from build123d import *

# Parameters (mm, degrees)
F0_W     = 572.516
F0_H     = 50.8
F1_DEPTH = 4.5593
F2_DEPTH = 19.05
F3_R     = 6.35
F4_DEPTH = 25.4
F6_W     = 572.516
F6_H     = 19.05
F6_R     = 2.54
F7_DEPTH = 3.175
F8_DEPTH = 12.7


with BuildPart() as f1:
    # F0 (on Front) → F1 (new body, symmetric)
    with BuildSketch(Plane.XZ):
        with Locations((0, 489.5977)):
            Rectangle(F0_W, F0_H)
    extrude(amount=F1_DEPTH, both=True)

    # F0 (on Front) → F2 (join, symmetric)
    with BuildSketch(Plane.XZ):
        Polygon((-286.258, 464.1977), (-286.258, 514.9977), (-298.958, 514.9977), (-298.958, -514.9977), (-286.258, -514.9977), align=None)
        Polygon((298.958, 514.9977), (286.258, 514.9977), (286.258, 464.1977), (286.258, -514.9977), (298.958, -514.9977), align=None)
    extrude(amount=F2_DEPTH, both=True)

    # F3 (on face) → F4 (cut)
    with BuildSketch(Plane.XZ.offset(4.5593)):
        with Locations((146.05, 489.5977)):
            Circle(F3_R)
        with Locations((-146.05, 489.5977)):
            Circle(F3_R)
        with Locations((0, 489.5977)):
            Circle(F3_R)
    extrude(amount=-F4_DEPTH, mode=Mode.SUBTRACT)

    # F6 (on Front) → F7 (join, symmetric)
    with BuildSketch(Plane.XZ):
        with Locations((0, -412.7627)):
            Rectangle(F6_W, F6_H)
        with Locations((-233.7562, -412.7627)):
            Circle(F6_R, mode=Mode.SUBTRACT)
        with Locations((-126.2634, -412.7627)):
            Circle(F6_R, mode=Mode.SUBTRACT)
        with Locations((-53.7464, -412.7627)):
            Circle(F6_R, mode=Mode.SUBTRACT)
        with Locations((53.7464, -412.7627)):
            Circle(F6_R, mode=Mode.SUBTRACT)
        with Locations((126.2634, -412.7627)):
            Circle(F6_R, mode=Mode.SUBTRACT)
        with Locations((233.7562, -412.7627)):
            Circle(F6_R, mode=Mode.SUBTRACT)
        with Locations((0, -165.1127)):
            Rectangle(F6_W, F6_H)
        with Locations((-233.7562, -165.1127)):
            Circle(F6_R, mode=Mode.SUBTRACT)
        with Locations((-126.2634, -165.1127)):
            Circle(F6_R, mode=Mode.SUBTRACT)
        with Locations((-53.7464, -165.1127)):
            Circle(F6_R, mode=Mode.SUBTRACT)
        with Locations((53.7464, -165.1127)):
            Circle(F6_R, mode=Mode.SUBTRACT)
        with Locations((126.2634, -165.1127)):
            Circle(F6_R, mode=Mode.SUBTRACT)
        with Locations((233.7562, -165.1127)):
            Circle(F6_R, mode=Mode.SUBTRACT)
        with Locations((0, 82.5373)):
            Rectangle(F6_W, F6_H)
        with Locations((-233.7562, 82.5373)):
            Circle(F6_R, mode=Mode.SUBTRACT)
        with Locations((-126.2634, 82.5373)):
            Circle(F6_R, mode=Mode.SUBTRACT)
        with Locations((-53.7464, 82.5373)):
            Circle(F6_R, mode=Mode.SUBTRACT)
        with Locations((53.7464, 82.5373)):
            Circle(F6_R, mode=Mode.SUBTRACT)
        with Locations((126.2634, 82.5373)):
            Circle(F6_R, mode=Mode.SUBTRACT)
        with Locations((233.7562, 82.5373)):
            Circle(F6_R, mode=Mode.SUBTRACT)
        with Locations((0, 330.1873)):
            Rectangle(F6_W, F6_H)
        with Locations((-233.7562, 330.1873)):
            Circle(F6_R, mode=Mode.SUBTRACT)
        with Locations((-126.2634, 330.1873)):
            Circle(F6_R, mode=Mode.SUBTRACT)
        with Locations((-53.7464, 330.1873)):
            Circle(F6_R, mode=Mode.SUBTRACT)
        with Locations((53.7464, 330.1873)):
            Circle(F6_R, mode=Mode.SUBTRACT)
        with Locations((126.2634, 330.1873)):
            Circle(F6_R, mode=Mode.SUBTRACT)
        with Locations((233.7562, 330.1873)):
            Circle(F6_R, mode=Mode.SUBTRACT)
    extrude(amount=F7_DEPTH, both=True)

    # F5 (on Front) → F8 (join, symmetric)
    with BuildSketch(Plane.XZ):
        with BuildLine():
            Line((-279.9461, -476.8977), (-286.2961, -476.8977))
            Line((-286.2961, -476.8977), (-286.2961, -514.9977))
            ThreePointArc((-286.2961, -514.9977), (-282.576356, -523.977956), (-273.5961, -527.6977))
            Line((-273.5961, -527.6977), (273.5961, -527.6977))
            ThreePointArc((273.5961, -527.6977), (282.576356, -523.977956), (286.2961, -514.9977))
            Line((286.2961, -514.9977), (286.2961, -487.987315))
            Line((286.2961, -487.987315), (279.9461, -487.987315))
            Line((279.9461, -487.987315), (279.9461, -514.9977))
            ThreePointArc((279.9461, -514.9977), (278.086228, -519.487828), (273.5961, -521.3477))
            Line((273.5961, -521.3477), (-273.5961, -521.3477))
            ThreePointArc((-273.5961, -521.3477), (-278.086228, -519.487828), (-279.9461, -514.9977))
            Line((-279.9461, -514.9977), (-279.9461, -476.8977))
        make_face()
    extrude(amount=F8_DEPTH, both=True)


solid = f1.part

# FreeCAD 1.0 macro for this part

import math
import FreeCAD as App
import Part
import Sketcher
Q = App.Units.Quantity


def add_polygon(sketch, points):
    """Adds a closed chain of lines whose ends are joined by coincident constraints."""
    first, n = sketch.GeometryCount, len(points)
    for a, b in zip(points, points[1:] + points[:1]):
        sketch.addGeometry(Part.LineSegment(App.Vector(*a, 0), App.Vector(*b, 0)), False)
    for i in range(n):
        sketch.addConstraint(Sketcher.Constraint("Coincident", first + i, 2, first + (i + 1) % n, 1))

doc = App.newDocument("Part")
body = doc.addObject("PartDesign::Body", "Body")

# Sketch on XZ plane
sketch1 = body.newObject("Sketcher::SketchObject", "Sketch")
sketch1.AttachmentSupport = (doc.getObject("XZ_Plane"), [""])
sketch1.MapMode = "FlatFace"
add_polygon(sketch1, [(-286.258, 514.9977), (-286.258, 464.1977), (286.258, 464.1977), (286.258, 514.9977)])  # lines 0-3
sketch1.addConstraint(Sketcher.Constraint("Vertical", 0))
sketch1.addConstraint(Sketcher.Constraint("Horizontal", 1))
sketch1.addConstraint(Sketcher.Constraint("Vertical", 2))
sketch1.addConstraint(Sketcher.Constraint("Horizontal", 3))
sketch1.addConstraint(Sketcher.Constraint("DistanceY", 0, 2, 0, 1, Q("2 in")))
sketch1.addConstraint(Sketcher.Constraint("DistanceX", 1, 1, 1, 2, Q("22.54 in")))
sketch1.addConstraint(Sketcher.Constraint("DistanceX", 0, 2, -1, 1, Q("11.27 in")))
sketch1.addConstraint(Sketcher.Constraint("DistanceY", -1, 1, 0, 2, Q("18.2755 in")))
pad1 = body.newObject("PartDesign::Pad", "Pad")
pad1.Profile = sketch1
pad1.Length = Q("0.359 in")
pad1.Midplane = True

# Sketch on XZ plane
sketch2 = body.newObject("Sketcher::SketchObject", "Sketch001")
sketch2.AttachmentSupport = (doc.getObject("XZ_Plane"), [""])
sketch2.MapMode = "FlatFace"
add_polygon(sketch2, [(-286.258, 514.9977), (-298.958, 514.9977), (-298.958, -514.9977), (-286.258, -514.9977)])  # lines 0-3
add_polygon(sketch2, [(298.958, 514.9977), (286.258, 514.9977), (286.258, -514.9977), (298.958, -514.9977)])  # lines 4-7
sketch2.addConstraint(Sketcher.Constraint("Horizontal", 0))
sketch2.addConstraint(Sketcher.Constraint("Vertical", 1))
sketch2.addConstraint(Sketcher.Constraint("Horizontal", 2))
sketch2.addConstraint(Sketcher.Constraint("Vertical", 3))
sketch2.addConstraint(Sketcher.Constraint("Horizontal", 4))
sketch2.addConstraint(Sketcher.Constraint("Vertical", 5))
sketch2.addConstraint(Sketcher.Constraint("Horizontal", 6))
sketch2.addConstraint(Sketcher.Constraint("Vertical", 7))
sketch2.addConstraint(Sketcher.Constraint("Symmetric", 2, 2, 4, 2, -1, 1))
sketch2.addConstraint(Sketcher.Constraint("Symmetric", 0, 2, 6, 2, -1, 1))
sketch2.addConstraint(Sketcher.Constraint("Horizontal", 3, 2, 4, 2))
sketch2.addConstraint(Sketcher.Constraint("DistanceX", 0, 2, 0, 1, Q("0.5 in")))
sketch2.addConstraint(Sketcher.Constraint("DistanceY", 1, 2, 1, 1, Q("40.551 in")))
sketch2.addConstraint(Sketcher.Constraint("DistanceX", 0, 2, -1, 1, Q("11.77 in")))
pad2 = body.newObject("PartDesign::Pad", "Pad001")
pad2.Profile = sketch2
pad2.Length = Q("1.5 in")
pad2.Midplane = True

# Sketch on XZ plane
sketch3 = body.newObject("Sketcher::SketchObject", "Sketch002")
sketch3.AttachmentSupport = (doc.getObject("XZ_Plane"), [""])
sketch3.MapMode = "FlatFace"
sketch3.AttachmentOffset = App.Placement(App.Vector(0, 0, 0.1795 * 25.4), App.Rotation())
sketch3.addGeometry(Part.Circle(App.Vector(146.05, 489.5977, 0), App.Vector(0, 0, 1), 6.35), False)
sketch3.addGeometry(Part.Circle(App.Vector(-146.05, 489.5977, 0), App.Vector(0, 0, 1), 6.35), False)
sketch3.addGeometry(Part.Circle(App.Vector(0, 489.5977, 0), App.Vector(0, 0, 1), 6.35), False)
sketch3.addConstraint(Sketcher.Constraint("Equal", 0, 1))
sketch3.addConstraint(Sketcher.Constraint("Equal", 1, 2))
sketch3.addConstraint(Sketcher.Constraint("Symmetric", 0, 3, 1, 3, -2))
sketch3.addConstraint(Sketcher.Constraint("PointOnObject", 2, 3, -2))
sketch3.addConstraint(Sketcher.Constraint("Horizontal", 1, 3, 2, 3))
sketch3.addConstraint(Sketcher.Constraint("Diameter", 0, Q("0.5 in")))
sketch3.addConstraint(Sketcher.Constraint("DistanceX", 1, 3, 0, 3, Q("11.5 in")))
sketch3.addConstraint(Sketcher.Constraint("DistanceY", -1, 1, 0, 3, Q("19.2755 in")))
pocket1 = body.newObject("PartDesign::Pocket", "Pocket")
pocket1.Profile = sketch3
pocket1.Length = Q("1 in")

# Sketch on XZ plane
sketch4 = body.newObject("Sketcher::SketchObject", "Sketch003")
sketch4.AttachmentSupport = (doc.getObject("XZ_Plane"), [""])
sketch4.MapMode = "FlatFace"
add_polygon(sketch4, [(-286.258, -403.2377), (-286.258, -422.2877), (286.258, -422.2877), (286.258, -403.2377)])  # lines 0-3
sketch4.addGeometry(Part.Circle(App.Vector(-233.7562, -412.7627, 0), App.Vector(0, 0, 1), 2.54), False)  # 4
sketch4.addGeometry(Part.Circle(App.Vector(-126.2634, -412.7627, 0), App.Vector(0, 0, 1), 2.54), False)  # 5
sketch4.addGeometry(Part.Circle(App.Vector(-53.7464, -412.7627, 0), App.Vector(0, 0, 1), 2.54), False)  # 6
sketch4.addGeometry(Part.Circle(App.Vector(53.7464, -412.7627, 0), App.Vector(0, 0, 1), 2.54), False)  # 7
sketch4.addGeometry(Part.Circle(App.Vector(126.2634, -412.7627, 0), App.Vector(0, 0, 1), 2.54), False)  # 8
sketch4.addGeometry(Part.Circle(App.Vector(233.7562, -412.7627, 0), App.Vector(0, 0, 1), 2.54), False)  # 9
add_polygon(sketch4, [(-286.258, -155.5877), (-286.258, -174.6377), (286.258, -174.6377), (286.258, -155.5877)])  # lines 10-13
sketch4.addGeometry(Part.Circle(App.Vector(-233.7562, -165.1127, 0), App.Vector(0, 0, 1), 2.54), False)  # 14
sketch4.addGeometry(Part.Circle(App.Vector(-126.2634, -165.1127, 0), App.Vector(0, 0, 1), 2.54), False)  # 15
sketch4.addGeometry(Part.Circle(App.Vector(-53.7464, -165.1127, 0), App.Vector(0, 0, 1), 2.54), False)  # 16
sketch4.addGeometry(Part.Circle(App.Vector(53.7464, -165.1127, 0), App.Vector(0, 0, 1), 2.54), False)  # 17
sketch4.addGeometry(Part.Circle(App.Vector(126.2634, -165.1127, 0), App.Vector(0, 0, 1), 2.54), False)  # 18
sketch4.addGeometry(Part.Circle(App.Vector(233.7562, -165.1127, 0), App.Vector(0, 0, 1), 2.54), False)  # 19
add_polygon(sketch4, [(-286.258, 92.0623), (-286.258, 73.0123), (286.258, 73.0123), (286.258, 92.0623)])  # lines 20-23
sketch4.addGeometry(Part.Circle(App.Vector(-233.7562, 82.5373, 0), App.Vector(0, 0, 1), 2.54), False)  # 24
sketch4.addGeometry(Part.Circle(App.Vector(-126.2634, 82.5373, 0), App.Vector(0, 0, 1), 2.54), False)  # 25
sketch4.addGeometry(Part.Circle(App.Vector(-53.7464, 82.5373, 0), App.Vector(0, 0, 1), 2.54), False)  # 26
sketch4.addGeometry(Part.Circle(App.Vector(53.7464, 82.5373, 0), App.Vector(0, 0, 1), 2.54), False)  # 27
sketch4.addGeometry(Part.Circle(App.Vector(126.2634, 82.5373, 0), App.Vector(0, 0, 1), 2.54), False)  # 28
sketch4.addGeometry(Part.Circle(App.Vector(233.7562, 82.5373, 0), App.Vector(0, 0, 1), 2.54), False)  # 29
add_polygon(sketch4, [(-286.258, 339.7123), (-286.258, 320.6623), (286.258, 320.6623), (286.258, 339.7123)])  # lines 30-33
sketch4.addGeometry(Part.Circle(App.Vector(-233.7562, 330.1873, 0), App.Vector(0, 0, 1), 2.54), False)  # 34
sketch4.addGeometry(Part.Circle(App.Vector(-126.2634, 330.1873, 0), App.Vector(0, 0, 1), 2.54), False)  # 35
sketch4.addGeometry(Part.Circle(App.Vector(-53.7464, 330.1873, 0), App.Vector(0, 0, 1), 2.54), False)  # 36
sketch4.addGeometry(Part.Circle(App.Vector(53.7464, 330.1873, 0), App.Vector(0, 0, 1), 2.54), False)  # 37
sketch4.addGeometry(Part.Circle(App.Vector(126.2634, 330.1873, 0), App.Vector(0, 0, 1), 2.54), False)  # 38
sketch4.addGeometry(Part.Circle(App.Vector(233.7562, 330.1873, 0), App.Vector(0, 0, 1), 2.54), False)  # 39
sketch4.addConstraint(Sketcher.Constraint("Vertical", 0))
sketch4.addConstraint(Sketcher.Constraint("Horizontal", 1))
sketch4.addConstraint(Sketcher.Constraint("Vertical", 2))
sketch4.addConstraint(Sketcher.Constraint("Horizontal", 3))
sketch4.addConstraint(Sketcher.Constraint("Vertical", 10))
sketch4.addConstraint(Sketcher.Constraint("Horizontal", 11))
sketch4.addConstraint(Sketcher.Constraint("Vertical", 12))
sketch4.addConstraint(Sketcher.Constraint("Horizontal", 13))
sketch4.addConstraint(Sketcher.Constraint("Vertical", 20))
sketch4.addConstraint(Sketcher.Constraint("Horizontal", 21))
sketch4.addConstraint(Sketcher.Constraint("Vertical", 22))
sketch4.addConstraint(Sketcher.Constraint("Horizontal", 23))
sketch4.addConstraint(Sketcher.Constraint("Vertical", 30))
sketch4.addConstraint(Sketcher.Constraint("Horizontal", 31))
sketch4.addConstraint(Sketcher.Constraint("Vertical", 32))
sketch4.addConstraint(Sketcher.Constraint("Horizontal", 33))
sketch4.addConstraint(Sketcher.Constraint("Equal", 4, 5))
sketch4.addConstraint(Sketcher.Constraint("Equal", 5, 6))
sketch4.addConstraint(Sketcher.Constraint("Equal", 6, 7))
sketch4.addConstraint(Sketcher.Constraint("Equal", 7, 8))
sketch4.addConstraint(Sketcher.Constraint("Equal", 8, 9))
sketch4.addConstraint(Sketcher.Constraint("Equal", 9, 14))
sketch4.addConstraint(Sketcher.Constraint("Equal", 14, 15))
sketch4.addConstraint(Sketcher.Constraint("Equal", 15, 16))
sketch4.addConstraint(Sketcher.Constraint("Equal", 16, 17))
sketch4.addConstraint(Sketcher.Constraint("Equal", 17, 18))
sketch4.addConstraint(Sketcher.Constraint("Equal", 18, 19))
sketch4.addConstraint(Sketcher.Constraint("Equal", 19, 24))
sketch4.addConstraint(Sketcher.Constraint("Equal", 24, 25))
sketch4.addConstraint(Sketcher.Constraint("Equal", 25, 26))
sketch4.addConstraint(Sketcher.Constraint("Equal", 26, 27))
sketch4.addConstraint(Sketcher.Constraint("Equal", 27, 28))
sketch4.addConstraint(Sketcher.Constraint("Equal", 28, 29))
sketch4.addConstraint(Sketcher.Constraint("Equal", 29, 34))
sketch4.addConstraint(Sketcher.Constraint("Equal", 34, 35))
sketch4.addConstraint(Sketcher.Constraint("Equal", 35, 36))
sketch4.addConstraint(Sketcher.Constraint("Equal", 36, 37))
sketch4.addConstraint(Sketcher.Constraint("Equal", 37, 38))
sketch4.addConstraint(Sketcher.Constraint("Equal", 38, 39))
sketch4.addConstraint(Sketcher.Constraint("Symmetric", 6, 3, 7, 3, -2))
sketch4.addConstraint(Sketcher.Constraint("Symmetric", 5, 3, 8, 3, -2))
sketch4.addConstraint(Sketcher.Constraint("Symmetric", 4, 3, 9, 3, -2))
sketch4.addConstraint(Sketcher.Constraint("Symmetric", 16, 3, 17, 3, -2))
sketch4.addConstraint(Sketcher.Constraint("Symmetric", 15, 3, 18, 3, -2))
sketch4.addConstraint(Sketcher.Constraint("Symmetric", 14, 3, 19, 3, -2))
sketch4.addConstraint(Sketcher.Constraint("Symmetric", 26, 3, 27, 3, -2))
sketch4.addConstraint(Sketcher.Constraint("Symmetric", 25, 3, 28, 3, -2))
sketch4.addConstraint(Sketcher.Constraint("Symmetric", 24, 3, 29, 3, -2))
sketch4.addConstraint(Sketcher.Constraint("Symmetric", 36, 3, 37, 3, -2))
sketch4.addConstraint(Sketcher.Constraint("Symmetric", 35, 3, 38, 3, -2))
sketch4.addConstraint(Sketcher.Constraint("Symmetric", 34, 3, 39, 3, -2))
sketch4.addConstraint(Sketcher.Constraint("Horizontal", 4, 3, 5, 3))
sketch4.addConstraint(Sketcher.Constraint("Horizontal", 5, 3, 6, 3))
sketch4.addConstraint(Sketcher.Constraint("Horizontal", 14, 3, 15, 3))
sketch4.addConstraint(Sketcher.Constraint("Horizontal", 15, 3, 16, 3))
sketch4.addConstraint(Sketcher.Constraint("Horizontal", 24, 3, 25, 3))
sketch4.addConstraint(Sketcher.Constraint("Horizontal", 25, 3, 26, 3))
sketch4.addConstraint(Sketcher.Constraint("Horizontal", 34, 3, 35, 3))
sketch4.addConstraint(Sketcher.Constraint("Horizontal", 35, 3, 36, 3))
sketch4.addConstraint(Sketcher.Constraint("Vertical", 4, 3, 14, 3))
sketch4.addConstraint(Sketcher.Constraint("Vertical", 5, 3, 15, 3))
sketch4.addConstraint(Sketcher.Constraint("Vertical", 6, 3, 16, 3))
sketch4.addConstraint(Sketcher.Constraint("Vertical", 14, 3, 24, 3))
sketch4.addConstraint(Sketcher.Constraint("Vertical", 15, 3, 25, 3))
sketch4.addConstraint(Sketcher.Constraint("Vertical", 16, 3, 26, 3))
sketch4.addConstraint(Sketcher.Constraint("Vertical", 24, 3, 34, 3))
sketch4.addConstraint(Sketcher.Constraint("Vertical", 25, 3, 35, 3))
sketch4.addConstraint(Sketcher.Constraint("Vertical", 26, 3, 36, 3))
sketch4.addConstraint(Sketcher.Constraint("Vertical", 3, 2, 10, 2))
sketch4.addConstraint(Sketcher.Constraint("Vertical", 2, 2, 11, 2))
sketch4.addConstraint(Sketcher.Constraint("Vertical", 13, 2, 20, 2))
sketch4.addConstraint(Sketcher.Constraint("Vertical", 12, 2, 21, 2))
sketch4.addConstraint(Sketcher.Constraint("Vertical", 23, 2, 30, 2))
sketch4.addConstraint(Sketcher.Constraint("Vertical", 22, 2, 31, 2))
sketch4.addConstraint(Sketcher.Constraint("Equal", 2, 10))
sketch4.addConstraint(Sketcher.Constraint("Equal", 12, 20))
sketch4.addConstraint(Sketcher.Constraint("Equal", 22, 30))
sketch4.addConstraint(Sketcher.Constraint("Diameter", 4, Q("0.2 in")))
sketch4.addConstraint(Sketcher.Constraint("DistanceY", 3, 2, 10, 2, Q("9 in")))
sketch4.addConstraint(Sketcher.Constraint("DistanceY", 13, 2, 20, 2, Q("9 in")))
sketch4.addConstraint(Sketcher.Constraint("DistanceY", 23, 2, 30, 2, Q("9 in")))
sketch4.addConstraint(Sketcher.Constraint("DistanceX", 1, 1, 1, 2, Q("22.54 in")))
sketch4.addConstraint(Sketcher.Constraint("DistanceY", 0, 2, 0, 1, Q("0.75 in")))
sketch4.addConstraint(Sketcher.Constraint("DistanceX", 0, 2, -1, 1, Q("11.27 in")))
sketch4.addConstraint(Sketcher.Constraint("DistanceY", 4, 3, 14, 3, Q("9.75 in")))
sketch4.addConstraint(Sketcher.Constraint("DistanceY", 14, 3, 24, 3, Q("9.75 in")))
sketch4.addConstraint(Sketcher.Constraint("DistanceY", 24, 3, 34, 3, Q("9.75 in")))
sketch4.addConstraint(Sketcher.Constraint("DistanceX", 4, 3, -1, 1, Q("9.203 in")))
sketch4.addConstraint(Sketcher.Constraint("DistanceX", 5, 3, -1, 1, Q("4.971 in")))
sketch4.addConstraint(Sketcher.Constraint("DistanceX", 6, 3, -1, 1, Q("2.116 in")))
sketch4.addConstraint(Sketcher.Constraint("DistanceY", 0, 2, 4, 3, Q("0.375 in")))
sketch4.addConstraint(Sketcher.Constraint("DistanceY", 4, 3, -1, 1, Q("16.2505 in")))
pad3 = body.newObject("PartDesign::Pad", "Pad002")
pad3.Profile = sketch4
pad3.Length = Q("0.25 in")
pad3.Midplane = True

# Sketch on XZ plane
sketch5 = body.newObject("Sketcher::SketchObject", "Sketch004")
sketch5.AttachmentSupport = (doc.getObject("XZ_Plane"), [""])
sketch5.MapMode = "FlatFace"
sketch5.addGeometry(Part.LineSegment(App.Vector(-279.9461, -476.8977, 0), App.Vector(-286.2961, -476.8977, 0)), False)
sketch5.addGeometry(Part.LineSegment(App.Vector(-286.2961, -476.8977, 0), App.Vector(-286.2961, -514.9977, 0)), False)
sketch5.addGeometry(Part.ArcOfCircle(Part.Circle(App.Vector(-273.5961, -514.9977, 0), App.Vector(0, 0, 1), 12.7), math.radians(-179.999998), math.radians(-90.000002)), False)
sketch5.addGeometry(Part.LineSegment(App.Vector(-273.5961, -527.6977, 0), App.Vector(273.5961, -527.6977, 0)), False)
sketch5.addGeometry(Part.ArcOfCircle(Part.Circle(App.Vector(273.5961, -514.9977, 0), App.Vector(0, 0, 1), 12.7), math.radians(-89.999998), math.radians(-0.000002)), False)
sketch5.addGeometry(Part.LineSegment(App.Vector(286.2961, -514.9977, 0), App.Vector(286.2961, -487.987315, 0)), False)
sketch5.addGeometry(Part.LineSegment(App.Vector(286.2961, -487.987315, 0), App.Vector(279.9461, -487.987315, 0)), False)
sketch5.addGeometry(Part.LineSegment(App.Vector(279.9461, -487.987315, 0), App.Vector(279.9461, -514.9977, 0)), False)
sketch5.addGeometry(Part.ArcOfCircle(Part.Circle(App.Vector(273.5961, -514.9977, 0), App.Vector(0, 0, 1), 6.35), math.radians(-89.999998), math.radians(-0.000002)), False)
sketch5.addGeometry(Part.LineSegment(App.Vector(273.5961, -521.3477, 0), App.Vector(-273.5961, -521.3477, 0)), False)
sketch5.addGeometry(Part.ArcOfCircle(Part.Circle(App.Vector(-273.5961, -514.9977, 0), App.Vector(0, 0, 1), 6.35), math.radians(-179.999998), math.radians(-90.000002)), False)
sketch5.addGeometry(Part.LineSegment(App.Vector(-279.9461, -514.9977, 0), App.Vector(-279.9461, -476.8977, 0)), False)
sketch5.addConstraint(Sketcher.Constraint("Coincident", 0, 2, 1, 1))
sketch5.addConstraint(Sketcher.Constraint("Tangent", 1, 2, 2, 1))
sketch5.addConstraint(Sketcher.Constraint("Tangent", 2, 2, 3, 1))
sketch5.addConstraint(Sketcher.Constraint("Tangent", 3, 2, 4, 1))
sketch5.addConstraint(Sketcher.Constraint("Tangent", 4, 2, 5, 1))
sketch5.addConstraint(Sketcher.Constraint("Coincident", 5, 2, 6, 1))
sketch5.addConstraint(Sketcher.Constraint("Coincident", 6, 2, 7, 1))
sketch5.addConstraint(Sketcher.Constraint("Tangent", 7, 2, 8, 2))
sketch5.addConstraint(Sketcher.Constraint("Tangent", 8, 1, 9, 1))
sketch5.addConstraint(Sketcher.Constraint("Tangent", 9, 2, 10, 2))
sketch5.addConstraint(Sketcher.Constraint("Tangent", 10, 1, 11, 1))
sketch5.addConstraint(Sketcher.Constraint("Coincident", 11, 2, 0, 1))
sketch5.addConstraint(Sketcher.Constraint("Horizontal", 0))
sketch5.addConstraint(Sketcher.Constraint("Vertical", 1))
sketch5.addConstraint(Sketcher.Constraint("Horizontal", 3))
sketch5.addConstraint(Sketcher.Constraint("Vertical", 5))
sketch5.addConstraint(Sketcher.Constraint("Horizontal", 6))
sketch5.addConstraint(Sketcher.Constraint("Vertical", 7))
sketch5.addConstraint(Sketcher.Constraint("Horizontal", 9))
sketch5.addConstraint(Sketcher.Constraint("Vertical", 11))
sketch5.addConstraint(Sketcher.Constraint("Coincident", 8, 3, 4, 3))
sketch5.addConstraint(Sketcher.Constraint("Coincident", 10, 3, 2, 3))
sketch5.addConstraint(Sketcher.Constraint("Equal", 2, 4))
sketch5.addConstraint(Sketcher.Constraint("Radius", 2, Q("0.5 in")))
sketch5.addConstraint(Sketcher.Constraint("Radius", 8, Q("0.25 in")))
sketch5.addConstraint(Sketcher.Constraint("DistanceY", 1, 2, 1, 1, Q("1.5 in")))
sketch5.addConstraint(Sketcher.Constraint("DistanceX", 3, 1, 3, 2, Q("21.543 in")))
sketch5.addConstraint(Sketcher.Constraint("DistanceX", 2, 3, -1, 1, Q("10.7715 in")))
sketch5.addConstraint(Sketcher.Constraint("DistanceY", 2, 3, -1, 1, Q("20.2755 in")))
sketch5.addConstraint(Sketcher.Constraint("DistanceY", 5, 1, 5, 2, 27.010385))
pad4 = body.newObject("PartDesign::Pad", "Pad003")
pad4.Profile = sketch5
pad4.Length = Q("1 in")
pad4.Midplane = True

doc.recompute()
